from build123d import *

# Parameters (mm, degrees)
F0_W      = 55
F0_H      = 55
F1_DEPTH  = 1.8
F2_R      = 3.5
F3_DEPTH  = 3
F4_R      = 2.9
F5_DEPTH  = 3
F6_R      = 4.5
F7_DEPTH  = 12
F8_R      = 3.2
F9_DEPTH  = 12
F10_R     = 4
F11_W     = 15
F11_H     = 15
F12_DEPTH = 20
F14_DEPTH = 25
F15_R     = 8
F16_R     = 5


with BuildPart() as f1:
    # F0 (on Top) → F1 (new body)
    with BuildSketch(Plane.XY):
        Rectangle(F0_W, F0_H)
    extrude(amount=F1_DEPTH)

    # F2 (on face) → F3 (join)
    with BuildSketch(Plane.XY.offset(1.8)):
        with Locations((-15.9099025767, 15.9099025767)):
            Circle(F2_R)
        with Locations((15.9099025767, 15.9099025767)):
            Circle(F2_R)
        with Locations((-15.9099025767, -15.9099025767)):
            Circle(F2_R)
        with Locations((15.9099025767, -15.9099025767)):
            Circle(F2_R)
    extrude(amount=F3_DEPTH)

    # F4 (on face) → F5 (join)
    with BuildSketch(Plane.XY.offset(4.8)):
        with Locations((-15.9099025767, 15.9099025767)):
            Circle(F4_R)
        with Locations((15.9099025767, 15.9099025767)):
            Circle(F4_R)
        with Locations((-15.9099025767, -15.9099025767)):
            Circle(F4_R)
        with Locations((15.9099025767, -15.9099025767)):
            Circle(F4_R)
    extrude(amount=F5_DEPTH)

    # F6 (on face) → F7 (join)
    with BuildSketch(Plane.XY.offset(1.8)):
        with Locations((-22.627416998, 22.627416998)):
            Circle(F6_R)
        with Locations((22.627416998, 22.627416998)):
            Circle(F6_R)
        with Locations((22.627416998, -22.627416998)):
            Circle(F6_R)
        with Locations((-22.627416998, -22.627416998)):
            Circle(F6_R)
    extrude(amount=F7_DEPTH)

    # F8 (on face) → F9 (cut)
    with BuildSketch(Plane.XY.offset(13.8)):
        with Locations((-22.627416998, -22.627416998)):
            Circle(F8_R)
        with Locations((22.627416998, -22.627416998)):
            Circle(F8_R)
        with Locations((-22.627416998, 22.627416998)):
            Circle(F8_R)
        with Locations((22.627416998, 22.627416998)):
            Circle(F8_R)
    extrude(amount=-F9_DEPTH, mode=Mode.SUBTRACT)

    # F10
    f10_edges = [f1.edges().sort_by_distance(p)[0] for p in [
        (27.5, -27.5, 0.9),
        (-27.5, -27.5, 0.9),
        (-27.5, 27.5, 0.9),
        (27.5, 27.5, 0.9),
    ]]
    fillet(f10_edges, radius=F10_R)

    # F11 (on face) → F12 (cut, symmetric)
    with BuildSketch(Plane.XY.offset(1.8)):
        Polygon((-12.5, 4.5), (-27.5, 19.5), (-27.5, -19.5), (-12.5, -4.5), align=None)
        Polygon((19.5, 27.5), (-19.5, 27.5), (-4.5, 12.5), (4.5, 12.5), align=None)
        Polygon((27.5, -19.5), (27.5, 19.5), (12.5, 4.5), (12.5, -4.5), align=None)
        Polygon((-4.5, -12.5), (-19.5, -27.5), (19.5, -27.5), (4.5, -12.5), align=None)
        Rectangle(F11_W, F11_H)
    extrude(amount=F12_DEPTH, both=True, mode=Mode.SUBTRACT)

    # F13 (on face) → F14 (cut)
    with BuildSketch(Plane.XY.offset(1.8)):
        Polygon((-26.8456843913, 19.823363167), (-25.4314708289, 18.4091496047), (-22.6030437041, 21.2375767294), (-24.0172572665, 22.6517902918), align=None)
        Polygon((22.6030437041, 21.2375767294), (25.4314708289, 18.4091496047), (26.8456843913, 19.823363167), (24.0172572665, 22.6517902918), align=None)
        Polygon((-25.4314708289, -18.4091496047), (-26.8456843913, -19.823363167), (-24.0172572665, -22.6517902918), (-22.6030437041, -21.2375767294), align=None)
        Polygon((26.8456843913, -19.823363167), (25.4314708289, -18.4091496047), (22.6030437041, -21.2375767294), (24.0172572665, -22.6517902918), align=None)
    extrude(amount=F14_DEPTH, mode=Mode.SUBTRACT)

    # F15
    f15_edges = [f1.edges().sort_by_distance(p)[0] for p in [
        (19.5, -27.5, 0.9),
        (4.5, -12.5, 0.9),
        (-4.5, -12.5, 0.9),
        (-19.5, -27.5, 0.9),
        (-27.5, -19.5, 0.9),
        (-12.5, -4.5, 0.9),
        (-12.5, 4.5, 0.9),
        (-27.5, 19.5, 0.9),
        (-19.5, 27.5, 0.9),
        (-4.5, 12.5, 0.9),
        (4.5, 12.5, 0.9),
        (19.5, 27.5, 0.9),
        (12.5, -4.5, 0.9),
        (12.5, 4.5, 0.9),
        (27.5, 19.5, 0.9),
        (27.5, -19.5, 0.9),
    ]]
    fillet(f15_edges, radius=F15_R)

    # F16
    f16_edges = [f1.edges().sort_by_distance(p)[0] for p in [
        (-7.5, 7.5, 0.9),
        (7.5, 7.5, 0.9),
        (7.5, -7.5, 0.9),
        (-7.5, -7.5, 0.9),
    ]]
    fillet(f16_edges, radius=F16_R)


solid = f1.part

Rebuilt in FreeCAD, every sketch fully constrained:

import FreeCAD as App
import Part
import Sketcher
from FreeCAD import Vector


def edges_at(feature, points):
    """Names of the edges that pass closest to the given points."""
    edges = feature.Shape.Edges
    near = lambda p: min(range(len(edges)), key=lambda i: edges[i].distToShape(Part.Vertex(*p))[0])
    return sorted({f"Edge{near(p) + 1}" for p in points})


def add_polygon(sketch, points):
    """Adds a closed chain of lines whose ends are joined by coincident constraints."""
    first, n = sketch.GeometryCount, len(points)
    for a, b in zip(points, points[1:] + points[:1]):
        sketch.addGeometry(Part.LineSegment(App.Vector(*a, 0), App.Vector(*b, 0)), False)
    for i in range(n):
        sketch.addConstraint(Sketcher.Constraint("Coincident", first + i, 2, first + (i + 1) % n, 1))

doc = App.newDocument("Part")
params = doc.addObject("Spreadsheet::Sheet", "Params")
for row, (alias, value) in enumerate([
    ("sketch1_width", "55 mm"),
    ("pad1_length", "1.8 mm"),
    ("sketch2_diameter", "7 mm"),
    ("pad2_length", "3 mm"),
    ("sketch3_diameter", "5.8 mm"),
    ("pad3_length", "3 mm"),
    ("sketch4_diameter", "9 mm"),
    ("pad4_length", "12 mm"),
    ("sketch5_diameter", "6.4 mm"),
    ("pocket1_length", "12 mm"),
    ("fillet_radius", "4 mm"),
    ("sketch6_width", "39 mm"),
    ("sketch6_width2", "9 mm"),
    ("sketch6_width3", "15 mm"),
    ("pocket2_length", "40 mm"),
    ("sketch7_length", "2 mm"),
    ("sketch7_length2", "4 mm"),
    ("pocket3_length", "25 mm"),
    ("fillet2_radius", "8 mm"),
    ("fillet3_radius", "5 mm"),
], start=1):
    params.set(f"A{row}", alias)
    params.set(f"B{row}", "=" + value)
    params.setAlias(f"B{row}", alias)

body = doc.addObject("PartDesign::Body", "Body")

# Sketch on XY plane
sketch1 = body.newObject("Sketcher::SketchObject", "Sketch")
sketch1.AttachmentSupport = (doc.getObject("XY_Plane"), [""])
sketch1.MapMode = "FlatFace"
add_polygon(sketch1, [(-27.5, 27.5), (-27.5, -27.5), (27.5, -27.5), (27.5, 27.5)])  # lines 0-3
sketch1.addConstraint(Sketcher.Constraint("Vertical", 0))
sketch1.addConstraint(Sketcher.Constraint("Horizontal", 1))
sketch1.addConstraint(Sketcher.Constraint("Vertical", 2))
sketch1.addConstraint(Sketcher.Constraint("Horizontal", 3))
sketch1.addConstraint(Sketcher.Constraint("Symmetric", 0, 2, 2, 2, -1, 1))
sketch1.addConstraint(Sketcher.Constraint("Equal", 3, 0))
sketch1.addConstraint(Sketcher.Constraint("DistanceX", 1, 1, 1, 2, 55.0))
sketch1.setExpression("Constraints[10]", "Params.sketch1_width")
pad1 = body.newObject("PartDesign::Pad", "Pad")
pad1.Profile = sketch1
pad1.setExpression("Length", "Params.pad1_length")

# Sketch on XY plane
sketch2 = body.newObject("Sketcher::SketchObject", "Sketch001")
sketch2.AttachmentSupport = (doc.getObject("XY_Plane"), [""])
sketch2.MapMode = "FlatFace"
sketch2.AttachmentOffset = App.Placement(Vector(0, 0, 1.8), App.Rotation())
sketch2.addGeometry(Part.Circle(Vector(-15.909903, 15.909903, 0), Vector(0, 0, 1), 3.5), False)
sketch2.addGeometry(Part.Circle(Vector(15.909903, 15.909903, 0), Vector(0, 0, 1), 3.5), False)
sketch2.addGeometry(Part.Circle(Vector(-15.909903, -15.909903, 0), Vector(0, 0, 1), 3.5), False)
sketch2.addGeometry(Part.Circle(Vector(15.909903, -15.909903, 0), Vector(0, 0, 1), 3.5), False)
sketch2.addConstraint(Sketcher.Constraint("Equal", 0, 1))
sketch2.addConstraint(Sketcher.Constraint("Equal", 1, 2))
sketch2.addConstraint(Sketcher.Constraint("Equal", 2, 3))
sketch2.addConstraint(Sketcher.Constraint("Symmetric", 1, 3, 2, 3, -1, 1))
sketch2.addConstraint(Sketcher.Constraint("Symmetric", 0, 3, 3, 3, -1, 1))
sketch2.addConstraint(Sketcher.Constraint("Symmetric", 0, 3, 1, 3, -2))
sketch2.addConstraint(Sketcher.Constraint("Diameter", 0, 7.0))
sketch2.addConstraint(Sketcher.Constraint("DistanceX", 0, 3, -1, 1, 15.909903))
sketch2.addConstraint(Sketcher.Constraint("DistanceY", -1, 1, 0, 3, 15.909903))
sketch2.setExpression("Constraints[6]", "Params.sketch2_diameter")
pad2 = body.newObject("PartDesign::Pad", "Pad001")
pad2.Profile = sketch2
pad2.setExpression("Length", "Params.pad2_length")

# Sketch on XY plane
sketch3 = body.newObject("Sketcher::SketchObject", "Sketch002")
sketch3.AttachmentSupport = (doc.getObject("XY_Plane"), [""])
sketch3.MapMode = "FlatFace"
sketch3.AttachmentOffset = App.Placement(Vector(0, 0, 4.8), App.Rotation())
sketch3.addGeometry(Part.Circle(Vector(-15.909903, 15.909903, 0), Vector(0, 0, 1), 2.9), False)
sketch3.addGeometry(Part.Circle(Vector(15.909903, 15.909903, 0), Vector(0, 0, 1), 2.9), False)
sketch3.addGeometry(Part.Circle(Vector(-15.909903, -15.909903, 0), Vector(0, 0, 1), 2.9), False)
sketch3.addGeometry(Part.Circle(Vector(15.909903, -15.909903, 0), Vector(0, 0, 1), 2.9), False)
sketch3.addConstraint(Sketcher.Constraint("Equal", 0, 1))
sketch3.addConstraint(Sketcher.Constraint("Equal", 1, 2))
sketch3.addConstraint(Sketcher.Constraint("Equal", 2, 3))
sketch3.addConstraint(Sketcher.Constraint("Symmetric", 1, 3, 2, 3, -1, 1))
sketch3.addConstraint(Sketcher.Constraint("Symmetric", 0, 3, 3, 3, -1, 1))
sketch3.addConstraint(Sketcher.Constraint("Symmetric", 0, 3, 1, 3, -2))
sketch3.addConstraint(Sketcher.Constraint("Diameter", 0, 5.8))
sketch3.addConstraint(Sketcher.Constraint("DistanceX", 0, 3, -1, 1, 15.909903))
sketch3.addConstraint(Sketcher.Constraint("DistanceY", -1, 1, 0, 3, 15.909903))
sketch3.setExpression("Constraints[6]", "Params.sketch3_diameter")
pad3 = body.newObject("PartDesign::Pad", "Pad002")
pad3.Profile = sketch3
pad3.setExpression("Length", "Params.pad3_length")

# Sketch on XY plane
sketch4 = body.newObject("Sketcher::SketchObject", "Sketch003")
sketch4.AttachmentSupport = (doc.getObject("XY_Plane"), [""])
sketch4.MapMode = "FlatFace"
sketch4.AttachmentOffset = App.Placement(Vector(0, 0, 1.8), App.Rotation())
sketch4.addGeometry(Part.Circle(Vector(-22.627417, 22.627417, 0), Vector(0, 0, 1), 4.5), False)
sketch4.addGeometry(Part.Circle(Vector(22.627417, 22.627417, 0), Vector(0, 0, 1), 4.5), False)
sketch4.addGeometry(Part.Circle(Vector(22.627417, -22.627417, 0), Vector(0, 0, 1), 4.5), False)
sketch4.addGeometry(Part.Circle(Vector(-22.627417, -22.627417, 0), Vector(0, 0, 1), 4.5), False)
sketch4.addConstraint(Sketcher.Constraint("Equal", 0, 1))
sketch4.addConstraint(Sketcher.Constraint("Equal", 1, 2))
sketch4.addConstraint(Sketcher.Constraint("Equal", 2, 3))
sketch4.addConstraint(Sketcher.Constraint("Symmetric", 0, 3, 2, 3, -1, 1))
sketch4.addConstraint(Sketcher.Constraint("Symmetric", 1, 3, 3, 3, -1, 1))
sketch4.addConstraint(Sketcher.Constraint("Symmetric", 0, 3, 1, 3, -2))
sketch4.addConstraint(Sketcher.Constraint("Diameter", 0, 9.0))
sketch4.addConstraint(Sketcher.Constraint("DistanceX", 0, 3, -1, 1, 22.627417))
sketch4.addConstraint(Sketcher.Constraint("DistanceY", -1, 1, 0, 3, 22.627417))
sketch4.setExpression("Constraints[6]", "Params.sketch4_diameter")
pad4 = body.newObject("PartDesign::Pad", "Pad003")
pad4.Profile = sketch4
pad4.setExpression("Length", "Params.pad4_length")

# Sketch on XY plane
sketch5 = body.newObject("Sketcher::SketchObject", "Sketch004")
sketch5.AttachmentSupport = (doc.getObject("XY_Plane"), [""])
sketch5.MapMode = "FlatFace"
sketch5.AttachmentOffset = App.Placement(Vector(0, 0, 13.8), App.Rotation())
sketch5.addGeometry(Part.Circle(Vector(-22.627417, -22.627417, 0), Vector(0, 0, 1), 3.2), False)
sketch5.addGeometry(Part.Circle(Vector(22.627417, -22.627417, 0), Vector(0, 0, 1), 3.2), False)
sketch5.addGeometry(Part.Circle(Vector(-22.627417, 22.627417, 0), Vector(0, 0, 1), 3.2), False)
sketch5.addGeometry(Part.Circle(Vector(22.627417, 22.627417, 0), Vector(0, 0, 1), 3.2), False)
sketch5.addConstraint(Sketcher.Constraint("Equal", 0, 1))
sketch5.addConstraint(Sketcher.Constraint("Equal", 1, 2))
sketch5.addConstraint(Sketcher.Constraint("Equal", 2, 3))
sketch5.addConstraint(Sketcher.Constraint("Symmetric", 1, 3, 2, 3, -1, 1))
sketch5.addConstraint(Sketcher.Constraint("Symmetric", 0, 3, 3, 3, -1, 1))
sketch5.addConstraint(Sketcher.Constraint("Symmetric", 0, 3, 1, 3, -2))
sketch5.addConstraint(Sketcher.Constraint("Diameter", 0, 6.4))
sketch5.addConstraint(Sketcher.Constraint("DistanceX", 0, 3, -1, 1, 22.627417))
sketch5.addConstraint(Sketcher.Constraint("DistanceY", 0, 3, -1, 1, 22.627417))
sketch5.setExpression("Constraints[6]", "Params.sketch5_diameter")
pocket1 = body.newObject("PartDesign::Pocket", "Pocket")
pocket1.Profile = sketch5
pocket1.setExpression("Length", "Params.pocket1_length")
doc.recompute()

fillet = body.newObject("PartDesign::Fillet", "Fillet")
fillet.Base = (pocket1, edges_at(pocket1, [
    (27.5, -27.5, 0.9),
    (-27.5, -27.5, 0.9),
    (-27.5, 27.5, 0.9),
    (27.5, 27.5, 0.9),
]))
fillet.setExpression("Radius", "Params.fillet_radius")

# Sketch on XY plane
sketch6 = body.newObject("Sketcher::SketchObject", "Sketch005")
sketch6.AttachmentSupport = (doc.getObject("XY_Plane"), [""])
sketch6.MapMode = "FlatFace"
sketch6.AttachmentOffset = App.Placement(Vector(0, 0, 1.8), App.Rotation())
add_polygon(sketch6, [(-12.5, 4.5), (-27.5, 19.5), (-27.5, -19.5), (-12.5, -4.5)])  # lines 0-3
add_polygon(sketch6, [(19.5, 27.5), (-19.5, 27.5), (-4.5, 12.5), (4.5, 12.5)])  # lines 4-7
add_polygon(sketch6, [(27.5, -19.5), (27.5, 19.5), (12.5, 4.5), (12.5, -4.5)])  # lines 8-11
add_polygon(sketch6, [(-4.5, -12.5), (-19.5, -27.5), (19.5, -27.5), (4.5, -12.5)])  # lines 12-15
add_polygon(sketch6, [(-7.5, 7.5), (-7.5, -7.5), (7.5, -7.5), (7.5, 7.5)])  # lines 16-19
sketch6.addConstraint(Sketcher.Constraint("Vertical", 1))
sketch6.addConstraint(Sketcher.Constraint("Vertical", 3))
sketch6.addConstraint(Sketcher.Constraint("Horizontal", 4))
sketch6.addConstraint(Sketcher.Constraint("Horizontal", 6))
sketch6.addConstraint(Sketcher.Constraint("Vertical", 8))
sketch6.addConstraint(Sketcher.Constraint("Vertical", 10))
sketch6.addConstraint(Sketcher.Constraint("Horizontal", 13))
sketch6.addConstraint(Sketcher.Constraint("Horizontal", 15))
sketch6.addConstraint(Sketcher.Constraint("Vertical", 16))
sketch6.addConstraint(Sketcher.Constraint("Horizontal", 17))
sketch6.addConstraint(Sketcher.Constraint("Vertical", 18))
sketch6.addConstraint(Sketcher.Constraint("Horizontal", 19))
sketch6.addConstraint(Sketcher.Constraint("Symmetric", 1, 2, 8, 2, -1, 1))
sketch6.addConstraint(Sketcher.Constraint("Symmetric", 2, 2, 9, 2, -1, 1))
sketch6.addConstraint(Sketcher.Constraint("Symmetric", 7, 2, 12, 2, -1, 1))
sketch6.addConstraint(Sketcher.Constraint("Symmetric", 5, 2, 14, 2, -1, 1))
sketch6.addConstraint(Sketcher.Constraint("Symmetric", 16, 2, 18, 2, -1, 1))
sketch6.addConstraint(Sketcher.Constraint("Perpendicular", 0, 2))
sketch6.addConstraint(Sketcher.Constraint("Perpendicular", 2, 5))
sketch6.addConstraint(Sketcher.Constraint("Perpendicular", 5, 7))
sketch6.addConstraint(Sketcher.Constraint("Perpendicular", 9, 11))
sketch6.addConstraint(Sketcher.Constraint("Perpendicular", 11, 12))
sketch6.addConstraint(Sketcher.Constraint("Perpendicular", 12, 14))
sketch6.addConstraint(Sketcher.Constraint("Horizontal", 0, 2, 8, 2))
sketch6.addConstraint(Sketcher.Constraint("Horizontal", 3, 2, 9, 2))
sketch6.addConstraint(Sketcher.Constraint("Horizontal", 2, 2, 10, 2))
sketch6.addConstraint(Sketcher.Constraint("Vertical", 4, 2, 12, 2))
sketch6.addConstraint(Sketcher.Constraint("Equal", 13, 1))
sketch6.addConstraint(Sketcher.Constraint("Equal", 15, 3))
sketch6.addConstraint(Sketcher.Constraint("Equal", 19, 16))
sketch6.addConstraint(Sketcher.Constraint("DistanceX", 4, 2, 4, 1, 39.0))
sketch6.addConstraint(Sketcher.Constraint("DistanceX", 6, 1, 6, 2, 9.0))
sketch6.addConstraint(Sketcher.Constraint("DistanceX", 17, 1, 17, 2, 15.0))
sketch6.addConstraint(Sketcher.Constraint("DistanceX", 0, 2, 4, 2, 8.0))
sketch6.addConstraint(Sketcher.Constraint("DistanceY", 0, 2, 4, 2, 8.0))
sketch6.setExpression("Constraints[50]", "Params.sketch6_width")
sketch6.setExpression("Constraints[51]", "Params.sketch6_width2")
sketch6.setExpression("Constraints[52]", "Params.sketch6_width3")
pocket2 = body.newObject("PartDesign::Pocket", "Pocket001")
pocket2.Profile = sketch6
pocket2.setExpression("Length", "Params.pocket2_length")
pocket2.Midplane = True

# Sketch on XY plane
sketch7 = body.newObject("Sketcher::SketchObject", "Sketch006")
sketch7.AttachmentSupport = (doc.getObject("XY_Plane"), [""])
sketch7.MapMode = "FlatFace"
sketch7.AttachmentOffset = App.Placement(Vector(0, 0, 1.8), App.Rotation())
add_polygon(sketch7, [(-26.845684, 19.823363), (-25.431471, 18.40915), (-22.603044, 21.237577), (-24.017257, 22.65179)])  # lines 0-3
add_polygon(sketch7, [(22.603044, 21.237577), (25.431471, 18.40915), (26.845684, 19.823363), (24.017257, 22.65179)])  # lines 4-7
add_polygon(sketch7, [(-25.431471, -18.40915), (-26.845684, -19.823363), (-24.017257, -22.65179), (-22.603044, -21.237577)])  # lines 8-11
add_polygon(sketch7, [(26.845684, -19.823363), (25.431471, -18.40915), (22.603044, -21.237577), (24.017257, -22.65179)])  # lines 12-15
sketch7.addConstraint(Sketcher.Constraint("Symmetric", 5, 2, 8, 2, -1, 1))
sketch7.addConstraint(Sketcher.Constraint("Symmetric", 6, 2, 9, 2, -1, 1))
sketch7.addConstraint(Sketcher.Constraint("Symmetric", 7, 2, 10, 2, -1, 1))
sketch7.addConstraint(Sketcher.Constraint("Symmetric", 4, 2, 11, 2, -1, 1))
sketch7.addConstraint(Sketcher.Constraint("Symmetric", 0, 2, 12, 2, -1, 1))
sketch7.addConstraint(Sketcher.Constraint("Symmetric", 1, 2, 13, 2, -1, 1))
sketch7.addConstraint(Sketcher.Constraint("Symmetric", 2, 2, 14, 2, -1, 1))
sketch7.addConstraint(Sketcher.Constraint("Symmetric", 3, 2, 15, 2, -1, 1))
sketch7.addConstraint(Sketcher.Constraint("Symmetric", 0, 2, 4, 2, -2))
sketch7.addConstraint(Sketcher.Constraint("Symmetric", 3, 2, 5, 2, -2))
sketch7.addConstraint(Sketcher.Constraint("Symmetric", 2, 2, 6, 2, -2))
sketch7.addConstraint(Sketcher.Constraint("Symmetric", 1, 2, 7, 2, -2))
sketch7.addConstraint(Sketcher.Constraint("Perpendicular", 0, 1))
sketch7.addConstraint(Sketcher.Constraint("Perpendicular", 1, 2))
sketch7.addConstraint(Sketcher.Constraint("Perpendicular", 2, 3))
sketch7.addConstraint(Sketcher.Constraint("Perpendicular", 3, 4))
sketch7.addConstraint(Sketcher.Constraint("Distance", 0, 2.0))
sketch7.addConstraint(Sketcher.Constraint("Distance", 1, 4.0))
sketch7.addConstraint(Sketcher.Constraint("DistanceX", 1, 2, 6, 2, 46.620301))
sketch7.addConstraint(Sketcher.Constraint("DistanceY", 11, 2, 0, 2, 36.818299))
sketch7.setExpression("Constraints[32]", "Params.sketch7_length")
sketch7.setExpression("Constraints[33]", "Params.sketch7_length2")
pocket3 = body.newObject("PartDesign::Pocket", "Pocket002")
pocket3.Profile = sketch7
pocket3.setExpression("Length", "Params.pocket3_length")
pocket3.Reversed = True
doc.recompute()

fillet2 = body.newObject("PartDesign::Fillet", "Fillet001")
fillet2.Base = (pocket3, edges_at(pocket3, [
    (19.5, -27.5, 0.9),
    (4.5, -12.5, 0.9),
    (-4.5, -12.5, 0.9),
    (-19.5, -27.5, 0.9),
    (-27.5, -19.5, 0.9),
    (-12.5, -4.5, 0.9),
    (-12.5, 4.5, 0.9),
    (-27.5, 19.5, 0.9),
    (-19.5, 27.5, 0.9),
    (-4.5, 12.5, 0.9),
    (4.5, 12.5, 0.9),
    (19.5, 27.5, 0.9),
    (12.5, -4.5, 0.9),
    (12.5, 4.5, 0.9),
    (27.5, 19.5, 0.9),
    (27.5, -19.5, 0.9),
]))
fillet2.setExpression("Radius", "Params.fillet2_radius")
doc.recompute()

fillet3 = body.newObject("PartDesign::Fillet", "Fillet002")
fillet3.Base = (fillet2, edges_at(fillet2, [
    (-7.5, 7.5, 0.9),
    (7.5, 7.5, 0.9),
    (7.5, -7.5, 0.9),
    (-7.5, -7.5, 0.9),
]))
fillet3.setExpression("Radius", "Params.fillet3_radius")

doc.recompute()
